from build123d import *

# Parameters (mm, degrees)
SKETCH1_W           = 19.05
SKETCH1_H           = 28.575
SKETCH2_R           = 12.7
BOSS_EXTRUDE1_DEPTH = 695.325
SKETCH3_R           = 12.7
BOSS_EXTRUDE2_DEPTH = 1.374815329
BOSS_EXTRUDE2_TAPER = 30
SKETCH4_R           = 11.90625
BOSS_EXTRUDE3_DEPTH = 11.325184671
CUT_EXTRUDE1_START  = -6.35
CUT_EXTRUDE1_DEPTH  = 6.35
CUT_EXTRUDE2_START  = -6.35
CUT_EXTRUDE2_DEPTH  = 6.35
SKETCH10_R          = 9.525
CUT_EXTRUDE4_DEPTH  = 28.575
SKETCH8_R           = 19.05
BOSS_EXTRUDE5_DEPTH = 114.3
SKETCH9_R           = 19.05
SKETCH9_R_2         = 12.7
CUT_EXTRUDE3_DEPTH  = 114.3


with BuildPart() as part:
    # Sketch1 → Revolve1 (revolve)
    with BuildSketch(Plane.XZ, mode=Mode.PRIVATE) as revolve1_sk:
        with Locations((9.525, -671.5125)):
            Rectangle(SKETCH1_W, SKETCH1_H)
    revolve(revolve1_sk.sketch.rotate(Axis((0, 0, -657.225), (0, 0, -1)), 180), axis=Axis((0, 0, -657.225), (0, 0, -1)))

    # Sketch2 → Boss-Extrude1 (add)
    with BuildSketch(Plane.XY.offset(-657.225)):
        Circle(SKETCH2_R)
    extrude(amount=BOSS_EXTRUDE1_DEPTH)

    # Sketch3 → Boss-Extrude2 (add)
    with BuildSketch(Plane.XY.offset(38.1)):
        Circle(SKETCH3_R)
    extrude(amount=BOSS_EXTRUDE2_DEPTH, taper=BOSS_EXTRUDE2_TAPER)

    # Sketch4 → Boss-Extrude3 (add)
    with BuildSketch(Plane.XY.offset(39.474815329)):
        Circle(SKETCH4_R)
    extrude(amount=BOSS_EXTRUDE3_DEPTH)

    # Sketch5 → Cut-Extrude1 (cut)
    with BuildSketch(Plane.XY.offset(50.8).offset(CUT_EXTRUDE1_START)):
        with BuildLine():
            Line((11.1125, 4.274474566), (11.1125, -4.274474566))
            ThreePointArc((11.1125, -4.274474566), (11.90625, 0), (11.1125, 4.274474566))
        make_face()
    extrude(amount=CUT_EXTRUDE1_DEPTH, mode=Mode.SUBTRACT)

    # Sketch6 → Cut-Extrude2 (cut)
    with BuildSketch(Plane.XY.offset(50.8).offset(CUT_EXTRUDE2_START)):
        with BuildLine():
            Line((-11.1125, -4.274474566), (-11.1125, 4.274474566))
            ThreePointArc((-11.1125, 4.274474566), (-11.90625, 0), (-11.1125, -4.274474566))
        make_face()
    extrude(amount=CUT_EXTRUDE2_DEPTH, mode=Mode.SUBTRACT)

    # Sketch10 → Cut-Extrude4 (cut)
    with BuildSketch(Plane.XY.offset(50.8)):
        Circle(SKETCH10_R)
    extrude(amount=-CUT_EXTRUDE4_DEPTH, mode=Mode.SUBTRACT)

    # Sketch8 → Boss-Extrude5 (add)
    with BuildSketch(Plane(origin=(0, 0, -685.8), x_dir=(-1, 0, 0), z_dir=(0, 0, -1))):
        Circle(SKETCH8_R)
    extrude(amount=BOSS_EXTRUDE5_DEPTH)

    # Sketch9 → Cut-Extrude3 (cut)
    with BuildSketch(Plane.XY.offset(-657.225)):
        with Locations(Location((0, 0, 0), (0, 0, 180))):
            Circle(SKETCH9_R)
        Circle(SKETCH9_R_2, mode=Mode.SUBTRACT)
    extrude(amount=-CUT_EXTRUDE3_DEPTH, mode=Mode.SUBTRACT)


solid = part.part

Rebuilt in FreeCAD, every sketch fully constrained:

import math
import FreeCAD as App
import Part
import Sketcher
Q = App.Units.Quantity

doc = App.newDocument("Part")
body = doc.addObject("PartDesign::Body", "Body")

# Sketch on XZ plane
sketch1 = doc.addObject("Sketcher::SketchObject", "Sketch")
body.addObject(sketch1)
sketch1.AttachmentSupport = (doc.XZ_Plane, [""])
sketch1.MapMode = "FlatFace"
sketch1.addGeometry(Part.LineSegment(App.Vector(0, -657, 0), App.Vector(0, -686, 0)), False)
sketch1.addGeometry(Part.LineSegment(App.Vector(0, -686, 0), App.Vector(19, -686, 0)), False)
sketch1.addGeometry(Part.LineSegment(App.Vector(19, -686, 0), App.Vector(19, -657, 0)), False)
sketch1.addGeometry(Part.LineSegment(App.Vector(19, -657, 0), App.Vector(0, -657, 0)), False)
sketch1.addConstraint(Sketcher.Constraint("Coincident", 0, 2, 1, 1))
sketch1.addConstraint(Sketcher.Constraint("Coincident", 1, 2, 2, 1))
sketch1.addConstraint(Sketcher.Constraint("Coincident", 2, 2, 3, 1))
sketch1.addConstraint(Sketcher.Constraint("Coincident", 3, 2, 0, 1))
sketch1.addConstraint(Sketcher.Constraint("Vertical", 0))
sketch1.addConstraint(Sketcher.Constraint("Horizontal", 1))
sketch1.addConstraint(Sketcher.Constraint("Vertical", 2))
sketch1.addConstraint(Sketcher.Constraint("Horizontal", 3))
sketch1.addConstraint(Sketcher.Constraint("PointOnObject", 0, 2, -2))
sketch1.addConstraint(Sketcher.Constraint("DistanceY", 0, 2, -1, 1, Q("27 in")))
sketch1.addConstraint(Sketcher.Constraint("DistanceX", 1, 1, 1, 2, Q("0.75 in")))
sketch1.addConstraint(Sketcher.Constraint("DistanceY", 0, 2, 0, 1, Q("1.125 in")))
revolution = doc.addObject("PartDesign::Revolution", "Revolution")
body.addObject(revolution)
revolution.Profile = sketch1
revolution.ReferenceAxis = (sketch1, ["V_Axis"])
revolution.Angle = 360

# Sketch on XY plane
sketch2 = doc.addObject("Sketcher::SketchObject", "Sketch001")
body.addObject(sketch2)
sketch2.AttachmentSupport = (doc.XY_Plane, [""])
sketch2.MapMode = "FlatFace"
sketch2.AttachmentOffset = App.Placement(App.Vector(0, 0, -25.875 * 25.4), App.Rotation())
sketch2.addGeometry(Part.Circle(App.Vector(0, 0, 0), App.Vector(0, 0, 1), 13), False)
sketch2.addConstraint(Sketcher.Constraint("Coincident", 0, 3, -1, 1))
sketch2.addConstraint(Sketcher.Constraint("Diameter", 0, Q("1 in")))
pad1 = doc.addObject("PartDesign::Pad", "Pad")
body.addObject(pad1)
pad1.Profile = sketch2
pad1.Length = Q("27.375 in")

# Sketch on XY plane
sketch3 = doc.addObject("Sketcher::SketchObject", "Sketch002")
body.addObject(sketch3)
sketch3.AttachmentSupport = (doc.XY_Plane, [""])
sketch3.MapMode = "FlatFace"
sketch3.AttachmentOffset = App.Placement(App.Vector(0, 0, 1.5 * 25.4), App.Rotation())
sketch3.addGeometry(Part.Circle(App.Vector(0, 0, 0), App.Vector(0, 0, 1), 13), False)
sketch3.addConstraint(Sketcher.Constraint("Coincident", 0, 3, -1, 1))
sketch3.addConstraint(Sketcher.Constraint("Diameter", 0, Q("1 in")))
pad2 = doc.addObject("PartDesign::Pad", "Pad001")
body.addObject(pad2)
pad2.Profile = sketch3
pad2.Length = 1.374815
pad2.TaperAngle = -30

# Sketch on XY plane
sketch4 = doc.addObject("Sketcher::SketchObject", "Sketch003")
body.addObject(sketch4)
sketch4.AttachmentSupport = (doc.XY_Plane, [""])
sketch4.MapMode = "FlatFace"
sketch4.AttachmentOffset = App.Placement(App.Vector(0, 0, 39.474815), App.Rotation())
sketch4.addGeometry(Part.Circle(App.Vector(0, 0, 0), App.Vector(0, 0, 1), 12), False)
sketch4.addConstraint(Sketcher.Constraint("Coincident", 0, 3, -1, 1))
sketch4.addConstraint(Sketcher.Constraint("Diameter", 0, Q("0.9375 in")))
pad3 = doc.addObject("PartDesign::Pad", "Pad002")
body.addObject(pad3)
pad3.Profile = sketch4
pad3.Length = 11.325185

# Sketch on XY plane
sketch5 = doc.addObject("Sketcher::SketchObject", "Sketch004")
body.addObject(sketch5)
sketch5.AttachmentSupport = (doc.XY_Plane, [""])
sketch5.MapMode = "FlatFace"
sketch5.AttachmentOffset = App.Placement(App.Vector(0, 0, 1.75 * 25.4), App.Rotation())
sketch5.addGeometry(Part.LineSegment(App.Vector(11, 4, 0), App.Vector(11, -4, 0)), False)
sketch5.addGeometry(Part.ArcOfCircle(Part.Circle(App.Vector(0, 0, 0), App.Vector(0, 0, 1), 12), math.radians(-21), math.radians(21)), False)
sketch5.addConstraint(Sketcher.Constraint("Coincident", 0, 1, 1, 2))
sketch5.addConstraint(Sketcher.Constraint("Coincident", 1, 1, 0, 2))
sketch5.addConstraint(Sketcher.Constraint("Vertical", 0))
sketch5.addConstraint(Sketcher.Constraint("Coincident", 1, 3, -1, 1))
sketch5.addConstraint(Sketcher.Constraint("Radius", 1, Q("0.46875 in")))
sketch5.addConstraint(Sketcher.Constraint("DistanceX", -1, 1, 0, 1, Q("0.4375 in")))
pocket1 = doc.addObject("PartDesign::Pocket", "Pocket")
body.addObject(pocket1)
pocket1.Profile = sketch5
pocket1.Length = Q("0.25 in")
pocket1.Reversed = True

# Sketch on XY plane
sketch6 = doc.addObject("Sketcher::SketchObject", "Sketch005")
body.addObject(sketch6)
sketch6.AttachmentSupport = (doc.XY_Plane, [""])
sketch6.MapMode = "FlatFace"
sketch6.AttachmentOffset = App.Placement(App.Vector(0, 0, 1.75 * 25.4), App.Rotation())
sketch6.addGeometry(Part.LineSegment(App.Vector(-11, -4, 0), App.Vector(-11, 4, 0)), False)
sketch6.addGeometry(Part.ArcOfCircle(Part.Circle(App.Vector(0, 0, 0), App.Vector(0, 0, 1), 12), math.radians(159), math.radians(201)), False)
sketch6.addConstraint(Sketcher.Constraint("Coincident", 0, 1, 1, 2))
sketch6.addConstraint(Sketcher.Constraint("Coincident", 1, 1, 0, 2))
sketch6.addConstraint(Sketcher.Constraint("Vertical", 0))
sketch6.addConstraint(Sketcher.Constraint("Coincident", 1, 3, -1, 1))
sketch6.addConstraint(Sketcher.Constraint("Radius", 1, Q("0.46875 in")))
sketch6.addConstraint(Sketcher.Constraint("DistanceX", 0, 1, -1, 1, Q("0.4375 in")))
pocket2 = doc.addObject("PartDesign::Pocket", "Pocket001")
body.addObject(pocket2)
pocket2.Profile = sketch6
pocket2.Length = Q("0.25 in")
pocket2.Reversed = True

# Sketch on XY plane
sketch7 = doc.addObject("Sketcher::SketchObject", "Sketch006")
body.addObject(sketch7)
sketch7.AttachmentSupport = (doc.XY_Plane, [""])
sketch7.MapMode = "FlatFace"
sketch7.AttachmentOffset = App.Placement(App.Vector(0, 0, 2 * 25.4), App.Rotation())
sketch7.addGeometry(Part.Circle(App.Vector(0, 0, 0), App.Vector(0, 0, 1), 10), False)
sketch7.addConstraint(Sketcher.Constraint("Coincident", 0, 3, -1, 1))
sketch7.addConstraint(Sketcher.Constraint("Diameter", 0, Q("0.75 in")))
pocket3 = doc.addObject("PartDesign::Pocket", "Pocket002")
body.addObject(pocket3)
pocket3.Profile = sketch7
pocket3.Length = Q("1.125 in")

# Sketch on XY plane
sketch8 = doc.addObject("Sketcher::SketchObject", "Sketch007")
body.addObject(sketch8)
sketch8.AttachmentSupport = (doc.XY_Plane, [""])
sketch8.MapMode = "FlatFace"
sketch8.AttachmentOffset = App.Placement(App.Vector(0, 0, -27 * 25.4), App.Rotation())
sketch8.addGeometry(Part.Circle(App.Vector(0, 0, 0), App.Vector(0, 0, 1), 19), False)
sketch8.addConstraint(Sketcher.Constraint("Coincident", 0, 3, -1, 1))
sketch8.addConstraint(Sketcher.Constraint("Diameter", 0, Q("1.5 in")))
pad4 = doc.addObject("PartDesign::Pad", "Pad003")
body.addObject(pad4)
pad4.Profile = sketch8
pad4.Length = Q("4.5 in")
pad4.Reversed = True

# Sketch on XY plane
sketch9 = doc.addObject("Sketcher::SketchObject", "Sketch008")
body.addObject(sketch9)
sketch9.AttachmentSupport = (doc.XY_Plane, [""])
sketch9.MapMode = "FlatFace"
sketch9.AttachmentOffset = App.Placement(App.Vector(0, 0, -25.875 * 25.4), App.Rotation())
sketch9.addGeometry(Part.Circle(App.Vector(0, 0, 0), App.Vector(0, 0, 1), 19), False)
sketch9.addGeometry(Part.Circle(App.Vector(0, 0, 0), App.Vector(0, 0, 1), 13), False)
sketch9.addConstraint(Sketcher.Constraint("Coincident", 0, 3, -1, 1))
sketch9.addConstraint(Sketcher.Constraint("Coincident", 1, 3, -1, 1))
sketch9.addConstraint(Sketcher.Constraint("Diameter", 1, Q("1 in")))
sketch9.addConstraint(Sketcher.Constraint("Diameter", 0, Q("1.5 in")))
pocket4 = doc.addObject("PartDesign::Pocket", "Pocket003")
body.addObject(pocket4)
pocket4.Profile = sketch9
pocket4.Length = Q("4.5 in")

doc.recompute()
